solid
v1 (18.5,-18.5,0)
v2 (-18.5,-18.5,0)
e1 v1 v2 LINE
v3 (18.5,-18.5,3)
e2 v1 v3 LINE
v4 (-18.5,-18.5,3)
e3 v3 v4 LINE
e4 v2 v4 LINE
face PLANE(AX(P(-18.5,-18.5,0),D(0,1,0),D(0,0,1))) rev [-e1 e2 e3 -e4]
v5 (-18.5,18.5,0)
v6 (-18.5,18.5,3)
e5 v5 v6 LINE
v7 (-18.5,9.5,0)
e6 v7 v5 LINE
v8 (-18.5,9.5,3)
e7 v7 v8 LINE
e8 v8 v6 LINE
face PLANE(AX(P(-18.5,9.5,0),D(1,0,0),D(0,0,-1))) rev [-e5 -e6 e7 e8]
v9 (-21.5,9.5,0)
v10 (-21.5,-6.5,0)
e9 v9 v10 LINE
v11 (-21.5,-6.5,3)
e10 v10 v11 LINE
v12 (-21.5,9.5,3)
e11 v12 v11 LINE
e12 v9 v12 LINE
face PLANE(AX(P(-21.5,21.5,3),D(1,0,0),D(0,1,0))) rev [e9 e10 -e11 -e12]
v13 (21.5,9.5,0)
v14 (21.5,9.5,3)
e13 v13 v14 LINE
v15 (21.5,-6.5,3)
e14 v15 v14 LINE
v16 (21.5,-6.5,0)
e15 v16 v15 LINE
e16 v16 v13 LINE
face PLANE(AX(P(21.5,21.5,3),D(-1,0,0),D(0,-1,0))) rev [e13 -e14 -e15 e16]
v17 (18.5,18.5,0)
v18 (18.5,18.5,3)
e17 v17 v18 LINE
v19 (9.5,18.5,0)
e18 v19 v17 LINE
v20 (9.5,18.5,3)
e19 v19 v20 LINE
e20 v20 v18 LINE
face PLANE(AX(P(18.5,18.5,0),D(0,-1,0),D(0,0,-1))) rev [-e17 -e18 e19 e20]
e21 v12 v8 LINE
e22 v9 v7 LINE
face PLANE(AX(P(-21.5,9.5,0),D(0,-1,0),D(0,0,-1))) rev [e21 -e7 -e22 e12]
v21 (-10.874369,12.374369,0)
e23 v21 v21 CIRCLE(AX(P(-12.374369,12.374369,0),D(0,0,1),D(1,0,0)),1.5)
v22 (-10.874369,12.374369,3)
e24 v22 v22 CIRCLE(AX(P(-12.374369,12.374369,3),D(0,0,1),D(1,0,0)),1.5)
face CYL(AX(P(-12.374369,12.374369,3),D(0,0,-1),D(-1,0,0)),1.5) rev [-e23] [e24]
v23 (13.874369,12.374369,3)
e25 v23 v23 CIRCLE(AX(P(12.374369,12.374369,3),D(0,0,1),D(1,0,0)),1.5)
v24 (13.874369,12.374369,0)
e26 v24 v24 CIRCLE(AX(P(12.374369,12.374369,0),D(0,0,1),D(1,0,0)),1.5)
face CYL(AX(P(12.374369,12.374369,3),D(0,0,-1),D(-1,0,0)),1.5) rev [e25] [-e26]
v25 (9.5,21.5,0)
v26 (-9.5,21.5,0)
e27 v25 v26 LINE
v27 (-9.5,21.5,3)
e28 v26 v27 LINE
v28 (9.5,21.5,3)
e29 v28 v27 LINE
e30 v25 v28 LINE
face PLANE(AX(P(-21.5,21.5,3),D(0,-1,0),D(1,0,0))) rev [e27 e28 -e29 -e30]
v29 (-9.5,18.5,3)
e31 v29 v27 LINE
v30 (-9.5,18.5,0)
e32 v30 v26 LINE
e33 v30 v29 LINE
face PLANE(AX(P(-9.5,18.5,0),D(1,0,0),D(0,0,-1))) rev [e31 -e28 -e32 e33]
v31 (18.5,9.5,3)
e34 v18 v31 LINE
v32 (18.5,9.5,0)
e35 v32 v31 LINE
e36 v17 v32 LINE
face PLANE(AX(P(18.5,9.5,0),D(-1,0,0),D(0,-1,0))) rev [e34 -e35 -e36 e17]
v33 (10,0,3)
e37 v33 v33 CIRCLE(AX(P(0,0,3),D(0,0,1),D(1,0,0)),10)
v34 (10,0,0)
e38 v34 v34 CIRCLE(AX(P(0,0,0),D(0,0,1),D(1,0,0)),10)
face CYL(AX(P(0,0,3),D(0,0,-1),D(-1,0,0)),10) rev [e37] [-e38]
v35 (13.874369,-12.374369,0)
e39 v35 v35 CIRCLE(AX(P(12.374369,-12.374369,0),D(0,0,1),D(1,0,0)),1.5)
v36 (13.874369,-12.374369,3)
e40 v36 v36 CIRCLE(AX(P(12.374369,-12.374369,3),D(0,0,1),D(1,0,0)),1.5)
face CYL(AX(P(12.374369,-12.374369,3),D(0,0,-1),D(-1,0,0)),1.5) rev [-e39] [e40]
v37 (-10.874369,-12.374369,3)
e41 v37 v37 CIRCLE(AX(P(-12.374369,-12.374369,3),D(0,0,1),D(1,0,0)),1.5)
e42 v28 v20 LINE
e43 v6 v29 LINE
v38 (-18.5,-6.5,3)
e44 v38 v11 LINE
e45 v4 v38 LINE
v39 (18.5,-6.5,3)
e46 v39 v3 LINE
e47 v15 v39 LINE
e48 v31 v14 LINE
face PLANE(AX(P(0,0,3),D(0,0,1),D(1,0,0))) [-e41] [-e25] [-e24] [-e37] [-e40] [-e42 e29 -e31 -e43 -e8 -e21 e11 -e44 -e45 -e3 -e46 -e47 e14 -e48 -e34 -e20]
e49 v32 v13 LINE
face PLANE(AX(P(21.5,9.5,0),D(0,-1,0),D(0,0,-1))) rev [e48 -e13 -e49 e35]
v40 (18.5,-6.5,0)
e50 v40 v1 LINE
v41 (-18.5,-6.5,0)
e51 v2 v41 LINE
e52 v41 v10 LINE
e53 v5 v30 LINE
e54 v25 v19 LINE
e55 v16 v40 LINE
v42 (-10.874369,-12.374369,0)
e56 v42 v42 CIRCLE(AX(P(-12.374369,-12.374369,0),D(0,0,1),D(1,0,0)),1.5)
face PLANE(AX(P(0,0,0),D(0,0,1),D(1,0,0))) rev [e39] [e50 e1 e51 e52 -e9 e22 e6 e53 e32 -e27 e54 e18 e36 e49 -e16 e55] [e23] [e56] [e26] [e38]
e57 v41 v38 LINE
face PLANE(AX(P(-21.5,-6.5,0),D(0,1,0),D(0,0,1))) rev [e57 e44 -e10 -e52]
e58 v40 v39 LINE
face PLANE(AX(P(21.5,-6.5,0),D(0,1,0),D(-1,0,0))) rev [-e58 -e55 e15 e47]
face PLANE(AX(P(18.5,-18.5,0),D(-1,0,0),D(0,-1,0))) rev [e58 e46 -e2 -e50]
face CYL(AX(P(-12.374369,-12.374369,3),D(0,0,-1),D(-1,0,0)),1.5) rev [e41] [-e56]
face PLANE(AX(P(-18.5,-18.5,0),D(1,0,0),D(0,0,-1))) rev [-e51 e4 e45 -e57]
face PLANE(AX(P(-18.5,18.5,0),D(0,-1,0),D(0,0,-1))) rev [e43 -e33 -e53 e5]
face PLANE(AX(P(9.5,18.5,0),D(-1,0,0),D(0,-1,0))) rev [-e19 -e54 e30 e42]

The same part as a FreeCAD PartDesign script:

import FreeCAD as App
import Part
import Sketcher
Q = App.Units.Quantity

doc = App.newDocument("Part")
body = doc.addObject("PartDesign::Body", "Body")

# Sketch on XY plane
sketch1 = body.newObject("Sketcher::SketchObject", "Sketch")
sketch1.AttachmentSupport = (doc.getObject("XY_Plane"), [""])
sketch1.MapMode = "FlatFace"
sketch1.addGeometry(Part.LineSegment(App.Vector(-21.5, 21.5, 0), App.Vector(-21.5, -21.5, 0)), False)
sketch1.addGeometry(Part.LineSegment(App.Vector(-21.5, -21.5, 0), App.Vector(21.5, -21.5, 0)), False)
sketch1.addGeometry(Part.LineSegment(App.Vector(21.5, -21.5, 0), App.Vector(21.5, 21.5, 0)), False)
sketch1.addGeometry(Part.LineSegment(App.Vector(21.5, 21.5, 0), App.Vector(-21.5, 21.5, 0)), False)
sketch1.addGeometry(Part.Circle(App.Vector(-12.4, -12.4, 0), App.Vector(0, 0, 1), 1.5), False)
sketch1.addGeometry(Part.Circle(App.Vector(12.4, -12.4, 0), App.Vector(0, 0, 1), 1.5), False)
sketch1.addGeometry(Part.Circle(App.Vector(-12.4, 12.4, 0), App.Vector(0, 0, 1), 1.5), False)
sketch1.addGeometry(Part.Circle(App.Vector(0, 0, 0), App.Vector(0, 0, 1), 10), False)
sketch1.addGeometry(Part.Circle(App.Vector(12.4, 12.4, 0), App.Vector(0, 0, 1), 1.5), False)
sketch1.addConstraint(Sketcher.Constraint("Coincident", 0, 2, 1, 1))
sketch1.addConstraint(Sketcher.Constraint("Coincident", 1, 2, 2, 1))
sketch1.addConstraint(Sketcher.Constraint("Coincident", 2, 2, 3, 1))
sketch1.addConstraint(Sketcher.Constraint("Coincident", 3, 2, 0, 1))
sketch1.addConstraint(Sketcher.Constraint("Vertical", 0))
sketch1.addConstraint(Sketcher.Constraint("Horizontal", 1))
sketch1.addConstraint(Sketcher.Constraint("Vertical", 2))
sketch1.addConstraint(Sketcher.Constraint("Horizontal", 3))
sketch1.addConstraint(Sketcher.Constraint("Coincident", 7, 3, -1, 1))
sketch1.addConstraint(Sketcher.Constraint("Equal", 4, 5))
sketch1.addConstraint(Sketcher.Constraint("Equal", 5, 6))
sketch1.addConstraint(Sketcher.Constraint("Equal", 6, 8))
sketch1.addConstraint(Sketcher.Constraint("Symmetric", 5, 3, 6, 3, -1, 1))
sketch1.addConstraint(Sketcher.Constraint("Symmetric", 4, 3, 8, 3, -1, 1))
sketch1.addConstraint(Sketcher.Constraint("Symmetric", 0, 2, 2, 2, -1, 1))
sketch1.addConstraint(Sketcher.Constraint("Symmetric", 4, 3, 5, 3, -2))
sketch1.addConstraint(Sketcher.Constraint("Equal", 3, 0))
sketch1.addConstraint(Sketcher.Constraint("Diameter", 4, Q("3 mm")))
sketch1.addConstraint(Sketcher.Constraint("Diameter", 7, Q("20 mm")))
sketch1.addConstraint(Sketcher.Constraint("DistanceX", 1, 1, 1, 2, Q("43 mm")))
sketch1.addConstraint(Sketcher.Constraint("DistanceX", 4, 3, -1, 1, Q("12.374369 mm")))
sketch1.addConstraint(Sketcher.Constraint("DistanceY", 4, 3, -1, 1, Q("12.374369 mm")))
pad1 = body.newObject("PartDesign::Pad", "Pad")
pad1.Profile = sketch1
pad1.Length = 3

# Sketch on XY plane
sketch2 = body.newObject("Sketcher::SketchObject", "Sketch001")
sketch2.AttachmentSupport = (doc.getObject("XY_Plane"), [""])
sketch2.MapMode = "FlatFace"
sketch2.AttachmentOffset = App.Placement(App.Vector(0, 0, 3), App.Rotation())
sketch2.addGeometry(Part.LineSegment(App.Vector(-21.5, -21.5, 0), App.Vector(21.5, -21.5, 0)), False)
sketch2.addGeometry(Part.LineSegment(App.Vector(21.5, -21.5, 0), App.Vector(21.5, -6.5, 0)), False)
sketch2.addGeometry(Part.LineSegment(App.Vector(21.5, -6.5, 0), App.Vector(18.5, -6.5, 0)), False)
sketch2.addGeometry(Part.LineSegment(App.Vector(18.5, -6.5, 0), App.Vector(18.5, -18.5, 0)), False)
sketch2.addGeometry(Part.LineSegment(App.Vector(18.5, -18.5, 0), App.Vector(-18.5, -18.5, 0)), False)
sketch2.addGeometry(Part.LineSegment(App.Vector(-18.5, -18.5, 0), App.Vector(-18.5, -6.5, 0)), False)
sketch2.addGeometry(Part.LineSegment(App.Vector(-18.5, -6.5, 0), App.Vector(-21.5, -6.5, 0)), False)
sketch2.addGeometry(Part.LineSegment(App.Vector(-21.5, -6.5, 0), App.Vector(-21.5, -21.5, 0)), False)
sketch2.addGeometry(Part.LineSegment(App.Vector(-21.5, 9.5, 0), App.Vector(-18.5, 9.5, 0)), False)
sketch2.addGeometry(Part.LineSegment(App.Vector(-18.5, 9.5, 0), App.Vector(-18.5, 18.5, 0)), False)
sketch2.addGeometry(Part.LineSegment(App.Vector(-18.5, 18.5, 0), App.Vector(-9.5, 18.5, 0)), False)
sketch2.addGeometry(Part.LineSegment(App.Vector(-9.5, 18.5, 0), App.Vector(-9.5, 21.5, 0)), False)
sketch2.addGeometry(Part.LineSegment(App.Vector(-9.5, 21.5, 0), App.Vector(-21.5, 21.5, 0)), False)
sketch2.addGeometry(Part.LineSegment(App.Vector(-21.5, 21.5, 0), App.Vector(-21.5, 9.5, 0)), False)
sketch2.addGeometry(Part.LineSegment(App.Vector(21.5, 9.5, 0), App.Vector(21.5, 21.5, 0)), False)
sketch2.addGeometry(Part.LineSegment(App.Vector(21.5, 21.5, 0), App.Vector(9.5, 21.5, 0)), False)
sketch2.addGeometry(Part.LineSegment(App.Vector(9.5, 21.5, 0), App.Vector(9.5, 18.5, 0)), False)
sketch2.addGeometry(Part.LineSegment(App.Vector(9.5, 18.5, 0), App.Vector(18.5, 18.5, 0)), False)
sketch2.addGeometry(Part.LineSegment(App.Vector(18.5, 18.5, 0), App.Vector(18.5, 9.5, 0)), False)
sketch2.addGeometry(Part.LineSegment(App.Vector(18.5, 9.5, 0), App.Vector(21.5, 9.5, 0)), False)
sketch2.addConstraint(Sketcher.Constraint("Coincident", 0, 2, 1, 1))
sketch2.addConstraint(Sketcher.Constraint("Coincident", 1, 2, 2, 1))
sketch2.addConstraint(Sketcher.Constraint("Coincident", 2, 2, 3, 1))
sketch2.addConstraint(Sketcher.Constraint("Coincident", 3, 2, 4, 1))
sketch2.addConstraint(Sketcher.Constraint("Coincident", 4, 2, 5, 1))
sketch2.addConstraint(Sketcher.Constraint("Coincident", 5, 2, 6, 1))
sketch2.addConstraint(Sketcher.Constraint("Coincident", 6, 2, 7, 1))
sketch2.addConstraint(Sketcher.Constraint("Coincident", 7, 2, 0, 1))
sketch2.addConstraint(Sketcher.Constraint("Coincident", 8, 2, 9, 1))
sketch2.addConstraint(Sketcher.Constraint("Coincident", 9, 2, 10, 1))
sketch2.addConstraint(Sketcher.Constraint("Coincident", 10, 2, 11, 1))
sketch2.addConstraint(Sketcher.Constraint("Coincident", 11, 2, 12, 1))
sketch2.addConstraint(Sketcher.Constraint("Coincident", 12, 2, 13, 1))
sketch2.addConstraint(Sketcher.Constraint("Coincident", 13, 2, 8, 1))
sketch2.addConstraint(Sketcher.Constraint("Coincident", 14, 2, 15, 1))
sketch2.addConstraint(Sketcher.Constraint("Coincident", 15, 2, 16, 1))
sketch2.addConstraint(Sketcher.Constraint("Coincident", 16, 2, 17, 1))
sketch2.addConstraint(Sketcher.Constraint("Coincident", 17, 2, 18, 1))
sketch2.addConstraint(Sketcher.Constraint("Coincident", 18, 2, 19, 1))
sketch2.addConstraint(Sketcher.Constraint("Coincident", 19, 2, 14, 1))
sketch2.addConstraint(Sketcher.Constraint("Horizontal", 0))
sketch2.addConstraint(Sketcher.Constraint("Vertical", 1))
sketch2.addConstraint(Sketcher.Constraint("Horizontal", 2))
sketch2.addConstraint(Sketcher.Constraint("Vertical", 3))
sketch2.addConstraint(Sketcher.Constraint("Horizontal", 4))
sketch2.addConstraint(Sketcher.Constraint("Vertical", 5))
sketch2.addConstraint(Sketcher.Constraint("Horizontal", 6))
sketch2.addConstraint(Sketcher.Constraint("Vertical", 7))
sketch2.addConstraint(Sketcher.Constraint("Horizontal", 8))
sketch2.addConstraint(Sketcher.Constraint("Vertical", 9))
sketch2.addConstraint(Sketcher.Constraint("Horizontal", 10))
sketch2.addConstraint(Sketcher.Constraint("Vertical", 11))
sketch2.addConstraint(Sketcher.Constraint("Horizontal", 12))
sketch2.addConstraint(Sketcher.Constraint("Vertical", 13))
sketch2.addConstraint(Sketcher.Constraint("Vertical", 14))
sketch2.addConstraint(Sketcher.Constraint("Horizontal", 15))
sketch2.addConstraint(Sketcher.Constraint("Vertical", 16))
sketch2.addConstraint(Sketcher.Constraint("Horizontal", 17))
sketch2.addConstraint(Sketcher.Constraint("Vertical", 18))
sketch2.addConstraint(Sketcher.Constraint("Horizontal", 19))
sketch2.addConstraint(Sketcher.Constraint("Symmetric", 3, 2, 9, 2, -1, 1))
sketch2.addConstraint(Sketcher.Constraint("Symmetric", 0, 2, 12, 2, -1, 1))
sketch2.addConstraint(Sketcher.Constraint("Symmetric", 7, 2, 14, 2, -1, 1))
sketch2.addConstraint(Sketcher.Constraint("Symmetric", 4, 2, 17, 2, -1, 1))
sketch2.addConstraint(Sketcher.Constraint("Symmetric", 2, 2, 5, 2, -2))
sketch2.addConstraint(Sketcher.Constraint("Symmetric", 13, 2, 19, 2, -2))
sketch2.addConstraint(Sketcher.Constraint("Equal", 12, 15))
sketch2.addConstraint(Sketcher.Constraint("Equal", 15, 3))
sketch2.addConstraint(Sketcher.Constraint("Equal", 17, 9))
sketch2.addConstraint(Sketcher.Constraint("Equal", 19, 11))
sketch2.addConstraint(Sketcher.Constraint("DistanceX", 0, 1, 0, 2, Q("43 mm")))
sketch2.addConstraint(Sketcher.Constraint("DistanceX", 2, 2, 2, 1, Q("3 mm")))
sketch2.addConstraint(Sketcher.Constraint("DistanceX", 10, 1, 10, 2, Q("9 mm")))
sketch2.addConstraint(Sketcher.Constraint("DistanceY", 5, 2, 8, 2, Q("16 mm")))
pocket1 = body.newObject("PartDesign::Pocket", "Pocket")
pocket1.Profile = sketch2
pocket1.Length = 3

doc.recompute()
